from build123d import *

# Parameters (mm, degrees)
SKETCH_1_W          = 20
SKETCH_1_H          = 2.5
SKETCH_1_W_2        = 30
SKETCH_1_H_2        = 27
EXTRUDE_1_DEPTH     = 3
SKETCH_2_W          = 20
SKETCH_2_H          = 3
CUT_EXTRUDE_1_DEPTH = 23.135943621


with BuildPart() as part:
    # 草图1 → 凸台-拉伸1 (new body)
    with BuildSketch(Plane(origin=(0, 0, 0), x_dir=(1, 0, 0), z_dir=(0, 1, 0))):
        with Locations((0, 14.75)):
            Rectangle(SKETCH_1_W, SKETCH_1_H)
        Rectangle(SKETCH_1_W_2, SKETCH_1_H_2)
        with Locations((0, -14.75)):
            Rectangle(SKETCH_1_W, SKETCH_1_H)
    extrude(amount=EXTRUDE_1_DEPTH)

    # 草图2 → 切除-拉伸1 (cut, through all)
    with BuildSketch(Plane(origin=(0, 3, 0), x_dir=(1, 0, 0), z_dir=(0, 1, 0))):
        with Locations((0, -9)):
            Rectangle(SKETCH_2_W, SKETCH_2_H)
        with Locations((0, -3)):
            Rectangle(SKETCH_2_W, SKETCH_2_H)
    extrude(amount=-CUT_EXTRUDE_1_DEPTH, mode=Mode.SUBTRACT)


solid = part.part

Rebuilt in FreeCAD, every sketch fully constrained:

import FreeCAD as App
import Part
import Sketcher
from FreeCAD import Vector


def add_polygon(sketch, points):
    """Adds a closed chain of lines whose ends are joined by coincident constraints."""
    first, n = sketch.GeometryCount, len(points)
    for a, b in zip(points, points[1:] + points[:1]):
        sketch.addGeometry(Part.LineSegment(App.Vector(*a, 0), App.Vector(*b, 0)), False)
    for i in range(n):
        sketch.addConstraint(Sketcher.Constraint("Coincident", first + i, 2, first + (i + 1) % n, 1))

doc = App.newDocument("Part")
body = doc.addObject("PartDesign::Body", "Body")

# Sketch on XZ plane
sketch1 = doc.addObject("Sketcher::SketchObject", "Sketch")
body.addObject(sketch1)
sketch1.AttachmentSupport = (doc.XZ_Plane, [""])
sketch1.MapMode = "FlatFace"
add_polygon(sketch1, [(-10, -16), (-10, -13.5), (-15, -13.5), (-15, 13.5), (-10, 13.5), (-10, 16), (10, 16), (10, 13.5), (15, 13.5), (15, -13.5), (10, -13.5), (10, -16)])  # lines 0-11
sketch1.addConstraint([
    Sketcher.Constraint("Vertical", 0),
    Sketcher.Constraint("Horizontal", 1),
    Sketcher.Constraint("Vertical", 2),
    Sketcher.Constraint("Horizontal", 3),
    Sketcher.Constraint("Vertical", 4),
    Sketcher.Constraint("Horizontal", 5),
    Sketcher.Constraint("Vertical", 6),
    Sketcher.Constraint("Horizontal", 7),
    Sketcher.Constraint("Vertical", 8),
    Sketcher.Constraint("Horizontal", 9),
    Sketcher.Constraint("Vertical", 10),
    Sketcher.Constraint("Horizontal", 11),
    Sketcher.Constraint("Symmetric", 0, 2, 6, 2, -1, 1),
    Sketcher.Constraint("Symmetric", 2, 2, 8, 2, -1, 1),
    Sketcher.Constraint("Symmetric", 4, 2, 10, 2, -1, 1),
    Sketcher.Constraint("Symmetric", 3, 2, 6, 2, -2),
    Sketcher.Constraint("DistanceX", 1, 2, 1, 1, 5.0),
    Sketcher.Constraint("DistanceX", 5, 1, 5, 2, 20.0),
    Sketcher.Constraint("DistanceY", 2, 1, 2, 2, 27.0),
    Sketcher.Constraint("DistanceY", 0, 1, 0, 2, 2.5),
])
pad1 = doc.addObject("PartDesign::Pad", "Pad")
body.addObject(pad1)
pad1.Profile = sketch1
pad1.Length = 3
pad1.Reversed = True

# Sketch on XZ plane
sketch2 = doc.addObject("Sketcher::SketchObject", "Sketch001")
body.addObject(sketch2)
sketch2.AttachmentSupport = (doc.XZ_Plane, [""])
sketch2.MapMode = "FlatFace"
sketch2.AttachmentOffset = App.Placement(Vector(0, 0, -3), App.Rotation())
add_polygon(sketch2, [(-10, 7.5), (-10, 10.5), (10, 10.5), (10, 7.5)])  # lines 0-3
add_polygon(sketch2, [(-10, 1.5), (-10, 4.5), (10, 4.5), (10, 1.5)])  # lines 4-7
sketch2.addConstraint([
    Sketcher.Constraint("Vertical", 0),
    Sketcher.Constraint("Horizontal", 1),
    Sketcher.Constraint("Vertical", 2),
    Sketcher.Constraint("Horizontal", 3),
    Sketcher.Constraint("Vertical", 4),
    Sketcher.Constraint("Horizontal", 5),
    Sketcher.Constraint("Vertical", 6),
    Sketcher.Constraint("Horizontal", 7),
    Sketcher.Constraint("Vertical", 3, 2, 4, 2),
    Sketcher.Constraint("Vertical", 2, 2, 5, 2),
    Sketcher.Constraint("Equal", 2, 4),
    Sketcher.Constraint("DistanceX", 1, 1, 1, 2, 20.0),
    Sketcher.Constraint("DistanceY", 0, 1, 0, 2, 3.0),
    Sketcher.Constraint("DistanceX", 0, 2, -1, 1, 10.0),
    Sketcher.Constraint("DistanceY", 4, 2, 3, 2, 3.0),
    Sketcher.Constraint("DistanceY", -1, 1, 0, 2, 10.5),
])
pocket1 = doc.addObject("PartDesign::Pocket", "Pocket")
body.addObject(pocket1)
pocket1.Profile = sketch2
pocket1.Type = "ThroughAll"
pocket1.Reversed = True

doc.recompute()
